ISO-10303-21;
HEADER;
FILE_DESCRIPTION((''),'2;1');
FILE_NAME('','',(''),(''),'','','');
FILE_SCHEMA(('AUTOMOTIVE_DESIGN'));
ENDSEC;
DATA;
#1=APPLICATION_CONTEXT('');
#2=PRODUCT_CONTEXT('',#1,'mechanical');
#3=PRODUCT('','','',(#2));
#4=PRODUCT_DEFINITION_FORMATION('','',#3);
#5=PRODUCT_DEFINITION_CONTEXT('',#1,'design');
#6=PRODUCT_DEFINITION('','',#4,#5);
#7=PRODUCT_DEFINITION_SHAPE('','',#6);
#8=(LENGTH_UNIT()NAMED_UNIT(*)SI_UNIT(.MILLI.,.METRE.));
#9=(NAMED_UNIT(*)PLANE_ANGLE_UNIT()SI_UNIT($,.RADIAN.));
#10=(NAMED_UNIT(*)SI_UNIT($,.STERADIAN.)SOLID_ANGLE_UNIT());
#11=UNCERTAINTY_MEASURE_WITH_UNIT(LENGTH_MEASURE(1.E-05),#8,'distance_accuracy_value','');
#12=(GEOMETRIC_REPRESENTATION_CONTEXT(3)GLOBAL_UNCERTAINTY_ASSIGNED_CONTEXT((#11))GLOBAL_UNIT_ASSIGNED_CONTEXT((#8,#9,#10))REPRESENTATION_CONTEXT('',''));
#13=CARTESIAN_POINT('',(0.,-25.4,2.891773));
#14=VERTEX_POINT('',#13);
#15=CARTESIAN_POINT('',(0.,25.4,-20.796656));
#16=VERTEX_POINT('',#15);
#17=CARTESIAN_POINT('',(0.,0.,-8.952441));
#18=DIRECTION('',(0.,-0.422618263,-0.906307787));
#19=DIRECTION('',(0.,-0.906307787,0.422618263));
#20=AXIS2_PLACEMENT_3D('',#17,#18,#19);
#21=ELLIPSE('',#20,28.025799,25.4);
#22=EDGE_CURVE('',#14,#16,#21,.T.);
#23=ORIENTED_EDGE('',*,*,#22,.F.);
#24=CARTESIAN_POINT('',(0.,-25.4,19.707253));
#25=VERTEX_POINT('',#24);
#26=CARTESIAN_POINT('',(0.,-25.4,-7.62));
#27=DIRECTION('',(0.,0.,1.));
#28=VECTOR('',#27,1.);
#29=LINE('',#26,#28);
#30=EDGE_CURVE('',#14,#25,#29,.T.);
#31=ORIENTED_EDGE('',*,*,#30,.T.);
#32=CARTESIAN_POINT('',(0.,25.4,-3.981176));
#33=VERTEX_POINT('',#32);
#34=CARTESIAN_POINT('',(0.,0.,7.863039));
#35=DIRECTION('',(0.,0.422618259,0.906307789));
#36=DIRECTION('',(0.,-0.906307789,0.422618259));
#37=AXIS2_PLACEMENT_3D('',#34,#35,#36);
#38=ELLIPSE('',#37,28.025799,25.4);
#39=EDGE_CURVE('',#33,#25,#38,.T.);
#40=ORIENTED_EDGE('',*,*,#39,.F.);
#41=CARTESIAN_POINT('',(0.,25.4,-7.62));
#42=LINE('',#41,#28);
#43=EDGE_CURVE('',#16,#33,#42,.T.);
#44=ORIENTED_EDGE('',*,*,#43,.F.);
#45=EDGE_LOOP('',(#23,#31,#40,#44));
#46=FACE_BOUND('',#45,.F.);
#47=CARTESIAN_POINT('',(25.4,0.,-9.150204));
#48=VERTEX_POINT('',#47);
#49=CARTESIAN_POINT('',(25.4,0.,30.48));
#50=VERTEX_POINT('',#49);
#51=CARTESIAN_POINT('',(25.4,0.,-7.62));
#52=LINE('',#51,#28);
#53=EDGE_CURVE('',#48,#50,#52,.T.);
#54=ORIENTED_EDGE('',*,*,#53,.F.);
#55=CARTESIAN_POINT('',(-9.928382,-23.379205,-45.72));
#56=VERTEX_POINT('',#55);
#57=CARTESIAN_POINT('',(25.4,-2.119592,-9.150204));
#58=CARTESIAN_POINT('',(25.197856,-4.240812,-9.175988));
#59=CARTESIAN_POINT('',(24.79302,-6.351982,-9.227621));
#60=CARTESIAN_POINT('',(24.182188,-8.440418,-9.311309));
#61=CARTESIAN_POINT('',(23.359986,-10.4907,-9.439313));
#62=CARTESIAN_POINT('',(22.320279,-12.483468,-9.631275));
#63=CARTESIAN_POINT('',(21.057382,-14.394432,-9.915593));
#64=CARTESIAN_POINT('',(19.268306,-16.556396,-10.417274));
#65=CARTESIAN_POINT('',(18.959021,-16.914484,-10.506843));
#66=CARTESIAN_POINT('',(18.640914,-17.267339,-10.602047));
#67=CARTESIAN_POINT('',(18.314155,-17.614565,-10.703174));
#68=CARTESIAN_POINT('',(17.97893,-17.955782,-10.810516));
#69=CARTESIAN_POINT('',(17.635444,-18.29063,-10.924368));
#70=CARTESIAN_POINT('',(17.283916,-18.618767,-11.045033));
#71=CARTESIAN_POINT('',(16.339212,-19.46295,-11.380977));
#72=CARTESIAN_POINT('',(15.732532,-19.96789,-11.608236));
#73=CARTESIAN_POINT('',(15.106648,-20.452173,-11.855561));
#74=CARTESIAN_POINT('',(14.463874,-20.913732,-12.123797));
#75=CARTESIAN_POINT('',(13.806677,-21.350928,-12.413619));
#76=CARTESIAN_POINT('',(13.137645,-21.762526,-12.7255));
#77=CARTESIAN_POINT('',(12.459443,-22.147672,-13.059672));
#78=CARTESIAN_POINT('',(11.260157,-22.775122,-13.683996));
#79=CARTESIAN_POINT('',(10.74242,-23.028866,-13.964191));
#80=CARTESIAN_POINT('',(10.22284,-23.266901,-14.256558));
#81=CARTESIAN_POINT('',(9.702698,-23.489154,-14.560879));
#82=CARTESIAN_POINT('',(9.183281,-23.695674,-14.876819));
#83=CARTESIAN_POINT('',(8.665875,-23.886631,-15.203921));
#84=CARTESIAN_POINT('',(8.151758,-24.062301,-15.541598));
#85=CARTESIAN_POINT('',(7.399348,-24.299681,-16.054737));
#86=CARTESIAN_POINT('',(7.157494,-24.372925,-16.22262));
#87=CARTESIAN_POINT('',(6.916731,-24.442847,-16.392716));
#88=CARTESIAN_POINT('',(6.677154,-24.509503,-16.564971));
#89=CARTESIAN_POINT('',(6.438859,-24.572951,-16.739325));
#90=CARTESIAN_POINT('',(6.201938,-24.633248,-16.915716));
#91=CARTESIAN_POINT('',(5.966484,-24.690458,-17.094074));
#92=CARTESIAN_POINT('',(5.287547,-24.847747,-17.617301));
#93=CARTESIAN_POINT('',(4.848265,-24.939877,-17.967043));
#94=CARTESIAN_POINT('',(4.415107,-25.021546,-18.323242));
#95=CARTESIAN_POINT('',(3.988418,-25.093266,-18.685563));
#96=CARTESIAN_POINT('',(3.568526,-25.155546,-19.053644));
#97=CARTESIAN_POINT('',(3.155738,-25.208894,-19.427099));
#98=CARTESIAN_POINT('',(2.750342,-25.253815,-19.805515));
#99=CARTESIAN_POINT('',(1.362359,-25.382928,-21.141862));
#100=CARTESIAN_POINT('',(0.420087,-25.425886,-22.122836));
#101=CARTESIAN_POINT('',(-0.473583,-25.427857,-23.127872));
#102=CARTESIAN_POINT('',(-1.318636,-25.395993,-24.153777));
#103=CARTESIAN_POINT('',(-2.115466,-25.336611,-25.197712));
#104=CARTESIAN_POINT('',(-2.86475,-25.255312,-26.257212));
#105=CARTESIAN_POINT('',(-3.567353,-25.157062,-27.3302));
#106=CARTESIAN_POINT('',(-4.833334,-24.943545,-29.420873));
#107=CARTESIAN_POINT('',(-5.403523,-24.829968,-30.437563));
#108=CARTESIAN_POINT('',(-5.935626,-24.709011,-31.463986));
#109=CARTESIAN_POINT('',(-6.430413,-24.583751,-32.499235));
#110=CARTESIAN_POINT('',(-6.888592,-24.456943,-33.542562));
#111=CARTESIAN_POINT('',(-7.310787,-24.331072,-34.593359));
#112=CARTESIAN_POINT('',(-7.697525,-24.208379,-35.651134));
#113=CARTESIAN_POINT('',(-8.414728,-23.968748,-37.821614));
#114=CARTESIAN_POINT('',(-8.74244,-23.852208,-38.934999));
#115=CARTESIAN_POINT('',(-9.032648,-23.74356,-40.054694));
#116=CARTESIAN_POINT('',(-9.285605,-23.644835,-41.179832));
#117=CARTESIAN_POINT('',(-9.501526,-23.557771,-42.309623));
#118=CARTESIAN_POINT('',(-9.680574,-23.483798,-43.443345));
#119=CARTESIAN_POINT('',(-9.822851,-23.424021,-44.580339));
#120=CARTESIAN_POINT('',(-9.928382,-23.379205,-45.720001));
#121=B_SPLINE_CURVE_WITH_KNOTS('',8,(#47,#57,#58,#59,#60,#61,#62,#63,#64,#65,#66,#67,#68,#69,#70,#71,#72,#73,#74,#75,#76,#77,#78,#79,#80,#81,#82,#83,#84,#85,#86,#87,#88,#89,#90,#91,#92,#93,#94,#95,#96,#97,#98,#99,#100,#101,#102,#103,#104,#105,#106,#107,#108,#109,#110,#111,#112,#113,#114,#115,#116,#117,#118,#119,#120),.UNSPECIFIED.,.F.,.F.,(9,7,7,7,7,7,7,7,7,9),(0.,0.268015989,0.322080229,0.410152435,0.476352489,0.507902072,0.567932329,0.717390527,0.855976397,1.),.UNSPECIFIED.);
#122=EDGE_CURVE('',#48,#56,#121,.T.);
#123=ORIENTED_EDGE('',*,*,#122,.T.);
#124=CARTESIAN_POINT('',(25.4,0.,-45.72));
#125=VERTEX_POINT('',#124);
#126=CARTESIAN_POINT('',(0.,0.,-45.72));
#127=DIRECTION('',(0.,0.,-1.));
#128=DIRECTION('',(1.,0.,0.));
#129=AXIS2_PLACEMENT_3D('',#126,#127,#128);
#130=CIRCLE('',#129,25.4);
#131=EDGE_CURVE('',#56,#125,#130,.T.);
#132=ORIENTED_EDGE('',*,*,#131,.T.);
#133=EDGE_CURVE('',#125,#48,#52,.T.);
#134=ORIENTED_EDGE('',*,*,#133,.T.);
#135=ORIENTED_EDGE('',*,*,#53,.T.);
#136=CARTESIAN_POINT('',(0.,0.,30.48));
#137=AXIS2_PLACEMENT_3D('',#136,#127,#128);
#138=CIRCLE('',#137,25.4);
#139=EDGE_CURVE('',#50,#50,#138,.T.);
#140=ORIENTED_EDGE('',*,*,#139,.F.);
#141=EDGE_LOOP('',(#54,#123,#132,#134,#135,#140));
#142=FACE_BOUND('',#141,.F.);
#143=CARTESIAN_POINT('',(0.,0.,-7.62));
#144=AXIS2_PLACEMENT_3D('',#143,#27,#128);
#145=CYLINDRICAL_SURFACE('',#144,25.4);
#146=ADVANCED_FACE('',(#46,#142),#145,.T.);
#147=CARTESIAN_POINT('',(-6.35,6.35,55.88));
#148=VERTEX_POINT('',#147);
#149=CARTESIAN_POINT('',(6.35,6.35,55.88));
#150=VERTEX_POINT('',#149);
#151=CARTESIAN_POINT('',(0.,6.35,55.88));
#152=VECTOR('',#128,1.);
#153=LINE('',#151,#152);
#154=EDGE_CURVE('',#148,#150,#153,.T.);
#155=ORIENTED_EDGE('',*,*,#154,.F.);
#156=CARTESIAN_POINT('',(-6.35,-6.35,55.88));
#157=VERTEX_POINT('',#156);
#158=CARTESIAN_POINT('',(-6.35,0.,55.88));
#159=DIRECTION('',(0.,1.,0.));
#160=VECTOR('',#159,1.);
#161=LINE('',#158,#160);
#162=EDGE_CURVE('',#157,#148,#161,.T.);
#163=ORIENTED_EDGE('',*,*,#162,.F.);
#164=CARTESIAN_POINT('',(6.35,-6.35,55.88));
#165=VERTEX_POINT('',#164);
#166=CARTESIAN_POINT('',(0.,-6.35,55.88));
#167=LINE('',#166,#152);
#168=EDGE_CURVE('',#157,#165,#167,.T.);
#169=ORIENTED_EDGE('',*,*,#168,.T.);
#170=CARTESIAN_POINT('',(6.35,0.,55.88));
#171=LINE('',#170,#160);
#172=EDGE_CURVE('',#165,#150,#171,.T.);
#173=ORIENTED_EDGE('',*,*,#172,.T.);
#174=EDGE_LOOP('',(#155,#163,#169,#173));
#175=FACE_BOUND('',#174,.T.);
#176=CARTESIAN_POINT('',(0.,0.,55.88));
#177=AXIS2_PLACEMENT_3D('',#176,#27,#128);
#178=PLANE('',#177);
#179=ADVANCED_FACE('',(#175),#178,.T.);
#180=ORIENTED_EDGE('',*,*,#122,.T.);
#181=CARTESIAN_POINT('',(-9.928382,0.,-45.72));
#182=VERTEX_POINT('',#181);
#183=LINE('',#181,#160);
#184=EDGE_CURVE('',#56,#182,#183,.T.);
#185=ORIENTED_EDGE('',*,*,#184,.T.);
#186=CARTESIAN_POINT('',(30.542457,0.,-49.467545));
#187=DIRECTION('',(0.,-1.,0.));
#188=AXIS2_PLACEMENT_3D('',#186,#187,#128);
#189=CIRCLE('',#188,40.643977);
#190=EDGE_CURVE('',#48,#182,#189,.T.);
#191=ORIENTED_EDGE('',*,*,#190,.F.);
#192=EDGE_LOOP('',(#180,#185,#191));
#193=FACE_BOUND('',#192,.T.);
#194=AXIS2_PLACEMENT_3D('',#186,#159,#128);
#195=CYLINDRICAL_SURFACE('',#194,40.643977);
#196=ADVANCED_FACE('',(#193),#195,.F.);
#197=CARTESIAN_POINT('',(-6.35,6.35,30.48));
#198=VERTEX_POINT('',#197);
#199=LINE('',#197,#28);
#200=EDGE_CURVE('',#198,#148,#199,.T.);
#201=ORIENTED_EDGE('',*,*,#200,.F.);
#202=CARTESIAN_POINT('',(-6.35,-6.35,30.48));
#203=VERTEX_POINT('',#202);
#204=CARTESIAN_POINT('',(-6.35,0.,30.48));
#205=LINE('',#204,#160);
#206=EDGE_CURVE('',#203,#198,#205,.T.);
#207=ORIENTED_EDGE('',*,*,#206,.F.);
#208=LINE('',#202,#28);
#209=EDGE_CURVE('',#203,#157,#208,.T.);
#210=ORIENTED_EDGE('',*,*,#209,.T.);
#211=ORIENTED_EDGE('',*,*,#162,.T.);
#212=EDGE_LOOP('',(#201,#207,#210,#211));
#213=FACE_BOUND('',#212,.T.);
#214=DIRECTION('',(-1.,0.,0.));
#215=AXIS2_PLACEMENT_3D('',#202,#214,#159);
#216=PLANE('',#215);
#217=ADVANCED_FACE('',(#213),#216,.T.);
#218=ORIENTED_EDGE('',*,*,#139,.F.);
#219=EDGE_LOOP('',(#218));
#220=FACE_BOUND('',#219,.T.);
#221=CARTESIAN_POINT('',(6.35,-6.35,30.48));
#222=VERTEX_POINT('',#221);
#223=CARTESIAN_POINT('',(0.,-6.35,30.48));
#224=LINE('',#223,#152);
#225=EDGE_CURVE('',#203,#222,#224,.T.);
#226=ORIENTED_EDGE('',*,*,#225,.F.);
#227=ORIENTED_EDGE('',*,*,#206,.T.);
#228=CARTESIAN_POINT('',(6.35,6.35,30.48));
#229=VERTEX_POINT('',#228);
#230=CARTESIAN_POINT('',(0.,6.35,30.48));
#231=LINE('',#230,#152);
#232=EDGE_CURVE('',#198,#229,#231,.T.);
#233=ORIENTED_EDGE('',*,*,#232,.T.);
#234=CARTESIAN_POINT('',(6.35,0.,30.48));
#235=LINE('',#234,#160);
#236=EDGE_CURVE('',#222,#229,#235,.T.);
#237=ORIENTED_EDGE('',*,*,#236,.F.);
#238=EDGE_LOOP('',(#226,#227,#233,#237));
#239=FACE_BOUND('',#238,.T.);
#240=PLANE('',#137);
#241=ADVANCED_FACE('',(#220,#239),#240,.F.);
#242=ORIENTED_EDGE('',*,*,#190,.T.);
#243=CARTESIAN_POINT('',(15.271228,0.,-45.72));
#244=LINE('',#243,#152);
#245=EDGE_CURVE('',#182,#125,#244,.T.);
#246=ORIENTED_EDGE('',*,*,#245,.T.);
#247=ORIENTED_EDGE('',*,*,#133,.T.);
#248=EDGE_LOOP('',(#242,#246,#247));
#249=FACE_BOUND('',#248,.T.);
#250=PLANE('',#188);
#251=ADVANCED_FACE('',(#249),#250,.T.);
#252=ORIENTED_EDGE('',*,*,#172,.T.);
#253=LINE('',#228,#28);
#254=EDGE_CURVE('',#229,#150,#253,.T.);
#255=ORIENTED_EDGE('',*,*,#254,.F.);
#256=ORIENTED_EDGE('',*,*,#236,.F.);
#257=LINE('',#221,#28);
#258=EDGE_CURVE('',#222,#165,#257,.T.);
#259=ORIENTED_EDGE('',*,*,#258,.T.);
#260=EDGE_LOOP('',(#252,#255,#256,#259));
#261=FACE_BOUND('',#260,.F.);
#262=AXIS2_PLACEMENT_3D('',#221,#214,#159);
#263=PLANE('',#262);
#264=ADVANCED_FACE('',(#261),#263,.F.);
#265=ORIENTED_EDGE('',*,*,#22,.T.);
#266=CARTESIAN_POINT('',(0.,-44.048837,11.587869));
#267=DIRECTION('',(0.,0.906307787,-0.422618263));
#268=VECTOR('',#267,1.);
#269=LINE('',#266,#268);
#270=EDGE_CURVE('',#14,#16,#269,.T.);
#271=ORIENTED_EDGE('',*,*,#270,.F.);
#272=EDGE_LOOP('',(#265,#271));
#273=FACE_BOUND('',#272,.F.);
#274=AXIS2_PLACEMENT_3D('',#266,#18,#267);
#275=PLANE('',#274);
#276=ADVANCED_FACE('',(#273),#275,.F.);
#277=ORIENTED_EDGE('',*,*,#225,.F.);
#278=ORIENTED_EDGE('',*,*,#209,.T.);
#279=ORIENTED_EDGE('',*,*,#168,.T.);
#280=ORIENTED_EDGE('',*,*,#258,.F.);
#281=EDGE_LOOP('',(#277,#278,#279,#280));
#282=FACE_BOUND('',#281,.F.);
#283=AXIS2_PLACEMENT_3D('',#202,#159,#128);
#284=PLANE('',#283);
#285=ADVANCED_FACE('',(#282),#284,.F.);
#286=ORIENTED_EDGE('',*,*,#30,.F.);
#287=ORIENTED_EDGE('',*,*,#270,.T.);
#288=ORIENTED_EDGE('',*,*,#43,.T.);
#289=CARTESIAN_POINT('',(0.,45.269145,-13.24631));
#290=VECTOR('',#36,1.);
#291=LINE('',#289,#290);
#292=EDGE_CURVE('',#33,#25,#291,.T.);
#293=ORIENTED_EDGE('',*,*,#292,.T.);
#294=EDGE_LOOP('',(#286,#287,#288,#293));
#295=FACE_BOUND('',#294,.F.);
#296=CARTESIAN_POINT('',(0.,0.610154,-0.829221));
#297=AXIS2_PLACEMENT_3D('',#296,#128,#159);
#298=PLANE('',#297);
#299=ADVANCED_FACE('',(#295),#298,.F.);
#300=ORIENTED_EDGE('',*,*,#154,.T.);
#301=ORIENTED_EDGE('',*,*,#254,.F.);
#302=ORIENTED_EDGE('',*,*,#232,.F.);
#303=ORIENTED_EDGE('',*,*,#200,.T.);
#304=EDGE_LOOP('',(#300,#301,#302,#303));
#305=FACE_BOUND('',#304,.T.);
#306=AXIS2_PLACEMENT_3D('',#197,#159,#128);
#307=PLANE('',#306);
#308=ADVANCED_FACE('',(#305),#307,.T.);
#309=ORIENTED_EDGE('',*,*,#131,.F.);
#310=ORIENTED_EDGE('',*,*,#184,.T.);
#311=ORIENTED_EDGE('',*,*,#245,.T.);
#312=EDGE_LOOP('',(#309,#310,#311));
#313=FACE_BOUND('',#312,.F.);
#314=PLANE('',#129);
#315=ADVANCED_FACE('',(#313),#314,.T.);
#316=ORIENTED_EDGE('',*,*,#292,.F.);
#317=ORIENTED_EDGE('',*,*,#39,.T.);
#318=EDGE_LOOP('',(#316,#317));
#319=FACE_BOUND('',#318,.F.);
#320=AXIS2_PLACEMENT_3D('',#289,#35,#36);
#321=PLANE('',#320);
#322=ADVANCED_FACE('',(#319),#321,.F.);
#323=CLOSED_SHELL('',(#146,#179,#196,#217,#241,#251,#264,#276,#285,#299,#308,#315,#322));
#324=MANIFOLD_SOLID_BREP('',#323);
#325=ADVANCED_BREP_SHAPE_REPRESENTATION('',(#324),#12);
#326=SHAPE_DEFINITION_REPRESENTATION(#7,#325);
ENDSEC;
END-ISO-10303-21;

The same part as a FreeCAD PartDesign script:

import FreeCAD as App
import Part
import Sketcher

V = App.Vector
Q = App.Units.Quantity


def add_polygon(sketch, points):
    """Adds a closed chain of lines whose ends are joined by coincident constraints."""
    first, n = sketch.GeometryCount, len(points)
    for a, b in zip(points, points[1:] + points[:1]):
        sketch.addGeometry(Part.LineSegment(App.Vector(*a, 0), App.Vector(*b, 0)), False)
    for i in range(n):
        sketch.addConstraint(Sketcher.Constraint("Coincident", first + i, 2, first + (i + 1) % n, 1))

doc = App.newDocument("Part")
params = doc.addObject("Spreadsheet::Sheet", "Params")
for row, (alias, value) in enumerate([
    ("sketch1_width", "1 in"),
    ("sketch1_height", "3 in"),
    ("revolution_angle", "360 deg"),
    ("sketch2_length", "0.6 in"),
    ("pocket1_length", "2.3 in"),
    ("sketch3_width", "0.5 in"),
    ("pad1_length", "1 in"),
    ("pocket2_length", "3.46 in"),
], start=1):
    params.set(f"A{row}", alias)
    params.set(f"B{row}", "=" + value)
    params.setAlias(f"B{row}", alias)

body = doc.addObject("PartDesign::Body", "Body")

sketch1 = body.newObject("Sketcher::SketchObject", "Sketch")
sketch1.AttachmentSupport = (doc.getObject("XZ_Plane"), [""])
sketch1.MapMode = "FlatFace"
add_polygon(sketch1, [(0, 30), (0, -46), (25, -46), (25, 30)])
sketch1.addConstraint([
    Sketcher.Constraint("Vertical", 0),
    Sketcher.Constraint("Horizontal", 1),
    Sketcher.Constraint("Vertical", 2),
    Sketcher.Constraint("Horizontal", 3),
    Sketcher.Constraint("PointOnObject", 0, 2, -2),
    Sketcher.Constraint("DistanceX", 1, 1, 1, 2, Q("1 in")),
    Sketcher.Constraint("DistanceY", 0, 2, 0, 1, Q("3 in")),
    Sketcher.Constraint("DistanceY", 0, 2, -1, 1, Q("1.8 in")),
])
sketch1.setExpression("Constraints[9]", "Params.sketch1_width")
sketch1.setExpression("Constraints[10]", "Params.sketch1_height")
revolution = body.newObject("PartDesign::Revolution", "Revolution")
revolution.Profile = sketch1
revolution.ReferenceAxis = (sketch1, ["V_Axis"])
revolution.setExpression("Angle", "Params.revolution_angle")

sketch2 = body.newObject("Sketcher::SketchObject", "Sketch001")
sketch2.AttachmentSupport = (doc.getObject("YZ_Plane"), [""])
sketch2.MapMode = "FlatFace"
add_polygon(sketch2, [(45, -13), (-38, 25), (-44, 12), (39, -27)])
sketch2.addConstraint([
    Sketcher.Constraint("Perpendicular", 0, 1),
    Sketcher.Constraint("Perpendicular", 1, 2),
    Sketcher.Constraint("Perpendicular", 2, 3),
    Sketcher.Constraint("DistanceY", -1, 1, 0, 2, Q("1 in")),
    Sketcher.Constraint("Angle", 0, Q("155 deg")),
    Sketcher.Constraint("Distance", 1, Q("0.6 in")),
    Sketcher.Constraint("Distance", 0, 91.444961),
    Sketcher.Constraint("DistanceX", 0, 2, -1, 1, 37.608135),
])
sketch2.setExpression("Constraints[9]", "Params.sketch2_length")
pocket1 = body.newObject("PartDesign::Pocket", "Pocket")
pocket1.Profile = sketch2
pocket1.setExpression("Length", "Params.pocket1_length")

sketch3 = body.newObject("Sketcher::SketchObject", "Sketch002")
sketch3.AttachmentSupport = (doc.getObject("XY_Plane"), [""])
sketch3.MapMode = "FlatFace"
sketch3.AttachmentOffset = App.Placement(V(0, 0, 1.2 * 25.4), App.Rotation())
add_polygon(sketch3, [(-6, 6), (-6, -6), (6, -6), (6, 6)])
sketch3.addConstraint([
    Sketcher.Constraint("Vertical", 0),
    Sketcher.Constraint("Horizontal", 1),
    Sketcher.Constraint("Vertical", 2),
    Sketcher.Constraint("Horizontal", 3),
    Sketcher.Constraint("Symmetric", 0, 2, 2, 2, -1, 1),
    Sketcher.Constraint("Equal", 3, 0),
    Sketcher.Constraint("DistanceX", 1, 1, 1, 2, Q("0.5 in")),
])
sketch3.setExpression("Constraints[10]", "Params.sketch3_width")
pad1 = body.newObject("PartDesign::Pad", "Pad")
pad1.Profile = sketch3
pad1.setExpression("Length", "Params.pad1_length")

sketch4 = body.newObject("Sketcher::SketchObject", "Sketch003")
sketch4.AttachmentSupport = (doc.getObject("XZ_Plane"), [""])
sketch4.MapMode = "FlatFace"
sketch4.addGeometry(Part.Circle(V(31, -49, 0), V(0, 0, 1), 41), False)
sketch4.addConstraint([
    Sketcher.Constraint("Diameter", 0, 81.287954),
    Sketcher.Constraint("DistanceX", -1, 1, 0, 3, 30.542457),
    Sketcher.Constraint("DistanceY", 0, 3, -1, 1, 49.467545),
])
pocket2 = body.newObject("PartDesign::Pocket", "Pocket001")
pocket2.Profile = sketch4
pocket2.setExpression("Length", "Params.pocket2_length")
pocket2.Reversed = True

doc.recompute()
